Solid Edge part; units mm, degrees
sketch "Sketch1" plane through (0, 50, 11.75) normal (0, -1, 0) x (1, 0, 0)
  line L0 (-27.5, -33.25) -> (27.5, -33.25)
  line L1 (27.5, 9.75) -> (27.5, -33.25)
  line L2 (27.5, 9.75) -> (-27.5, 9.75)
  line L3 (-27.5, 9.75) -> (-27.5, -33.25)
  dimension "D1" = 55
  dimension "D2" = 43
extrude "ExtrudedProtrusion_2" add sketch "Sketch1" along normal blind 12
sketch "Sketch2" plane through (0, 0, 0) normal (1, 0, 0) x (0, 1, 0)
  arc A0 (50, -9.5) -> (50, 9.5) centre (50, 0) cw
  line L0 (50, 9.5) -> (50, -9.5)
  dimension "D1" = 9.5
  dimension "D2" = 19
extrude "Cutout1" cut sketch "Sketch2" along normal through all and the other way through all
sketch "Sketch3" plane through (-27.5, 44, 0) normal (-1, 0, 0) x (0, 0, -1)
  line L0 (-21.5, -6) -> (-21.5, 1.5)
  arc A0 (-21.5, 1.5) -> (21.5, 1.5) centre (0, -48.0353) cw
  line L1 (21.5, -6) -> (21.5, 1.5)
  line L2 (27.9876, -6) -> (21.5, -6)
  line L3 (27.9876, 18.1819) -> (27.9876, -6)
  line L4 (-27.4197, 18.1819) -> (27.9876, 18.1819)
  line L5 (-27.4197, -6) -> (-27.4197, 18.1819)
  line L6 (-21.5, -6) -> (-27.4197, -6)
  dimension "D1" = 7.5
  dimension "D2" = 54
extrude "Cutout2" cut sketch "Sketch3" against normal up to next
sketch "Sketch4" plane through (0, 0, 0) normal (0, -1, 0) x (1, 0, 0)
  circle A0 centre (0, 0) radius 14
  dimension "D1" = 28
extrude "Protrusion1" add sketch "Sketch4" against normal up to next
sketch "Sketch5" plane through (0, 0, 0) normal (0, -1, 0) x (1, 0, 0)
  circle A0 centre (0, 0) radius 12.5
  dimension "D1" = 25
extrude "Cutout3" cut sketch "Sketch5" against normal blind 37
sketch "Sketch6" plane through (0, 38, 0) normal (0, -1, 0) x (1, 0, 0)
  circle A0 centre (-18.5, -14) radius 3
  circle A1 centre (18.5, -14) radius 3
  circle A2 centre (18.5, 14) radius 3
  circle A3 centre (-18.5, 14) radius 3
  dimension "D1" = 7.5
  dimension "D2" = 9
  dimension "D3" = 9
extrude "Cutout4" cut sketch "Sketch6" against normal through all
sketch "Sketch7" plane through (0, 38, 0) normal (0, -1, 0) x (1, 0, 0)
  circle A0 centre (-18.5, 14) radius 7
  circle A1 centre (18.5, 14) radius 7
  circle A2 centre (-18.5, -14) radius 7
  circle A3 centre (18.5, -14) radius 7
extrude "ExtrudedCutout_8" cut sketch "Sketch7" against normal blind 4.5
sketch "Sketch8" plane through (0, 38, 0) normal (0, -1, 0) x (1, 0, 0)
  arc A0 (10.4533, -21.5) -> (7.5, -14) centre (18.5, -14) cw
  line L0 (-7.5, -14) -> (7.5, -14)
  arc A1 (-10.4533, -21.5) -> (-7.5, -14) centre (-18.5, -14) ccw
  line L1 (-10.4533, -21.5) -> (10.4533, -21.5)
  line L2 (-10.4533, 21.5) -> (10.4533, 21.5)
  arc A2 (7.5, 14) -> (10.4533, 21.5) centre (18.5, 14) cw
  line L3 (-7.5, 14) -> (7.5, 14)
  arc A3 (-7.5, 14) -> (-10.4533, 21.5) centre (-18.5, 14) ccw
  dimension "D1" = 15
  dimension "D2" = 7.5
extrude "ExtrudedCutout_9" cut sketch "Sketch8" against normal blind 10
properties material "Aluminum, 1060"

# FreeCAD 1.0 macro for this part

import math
import FreeCAD as App
import Part
import Sketcher

V = App.Vector
Q = App.Units.Quantity

doc = App.newDocument("Part")
body = doc.addObject("PartDesign::Body", "Body")

# Sketch on XZ plane
sketch1 = body.newObject("Sketcher::SketchObject", "Sketch")
sketch1.AttachmentSupport = (doc.getObject("XZ_Plane"), [""])
sketch1.MapMode = "FlatFace"
sketch1.AttachmentOffset = App.Placement(V(0, 0, -50), App.Rotation())
sketch1.addGeometry([
    Part.LineSegment(V(-27.5, 21.5, 0), V(-27.5, -21.5, 0)),
    Part.LineSegment(V(-27.5, -21.5, 0), V(27.5, -21.5, 0)),
    Part.LineSegment(V(27.5, -21.5, 0), V(27.5, 21.5, 0)),
    Part.LineSegment(V(27.5, 21.5, 0), V(-27.5, 21.5, 0)),
], False)
sketch1.addConstraint([
    Sketcher.Constraint("Coincident", 0, 2, 1, 1),
    Sketcher.Constraint("Coincident", 1, 2, 2, 1),
    Sketcher.Constraint("Coincident", 2, 2, 3, 1),
    Sketcher.Constraint("Coincident", 3, 2, 0, 1),
    Sketcher.Constraint("Vertical", 0),
    Sketcher.Constraint("Horizontal", 1),
    Sketcher.Constraint("Vertical", 2),
    Sketcher.Constraint("Horizontal", 3),
    Sketcher.Constraint("Symmetric", 0, 2, 2, 2, -1, 1),
    Sketcher.Constraint("DistanceX", 0, 2, -1, 1, Q("27.5 mm")),
    Sketcher.Constraint("DistanceY", 0, 2, 0, 1, Q("43 mm")),
])
pad1 = body.newObject("PartDesign::Pad", "Pad")
pad1.Profile = sketch1
pad1.Length = 12

# Sketch on YZ plane
sketch2 = body.newObject("Sketcher::SketchObject", "Sketch001")
sketch2.AttachmentSupport = (doc.getObject("YZ_Plane"), [""])
sketch2.MapMode = "FlatFace"
sketch2.addGeometry([
    Part.ArcOfCircle(Part.Circle(V(50, 0, 0), V(0, 0, 1), 9.5), math.radians(90), math.radians(270)),
    Part.LineSegment(V(50, -9.5, 0), V(50, 9.5, 0)),
], False)
sketch2.addConstraint([
    Sketcher.Constraint("Coincident", 0, 1, 1, 2),
    Sketcher.Constraint("Coincident", 1, 1, 0, 2),
    Sketcher.Constraint("Vertical", 1),
    Sketcher.Constraint("PointOnObject", 0, 3, -1),
    Sketcher.Constraint("DistanceX", -1, 1, 0, 3, Q("50 mm")),
    Sketcher.Constraint("DistanceX", -1, 1, 0, 1, Q("50 mm")),
    Sketcher.Constraint("Radius", 0, Q("9.5 mm")),
])
pocket1 = body.newObject("PartDesign::Pocket", "Pocket")
pocket1.Profile = sketch2
pocket1.Type = "ThroughAll"
pocket1.Midplane = True

# Sketch on YZ plane
sketch3 = body.newObject("Sketcher::SketchObject", "Sketch002")
sketch3.AttachmentSupport = (doc.getObject("YZ_Plane"), [""])
sketch3.MapMode = "FlatFace"
sketch3.AttachmentOffset = App.Placement(V(0, 0, -27.5), App.Rotation())
sketch3.addGeometry([
    Part.LineSegment(V(50, 27.4197, 0), V(50, 21.5, 0)),  # 0
    Part.LineSegment(V(50, 21.5, 0), V(42.5, 21.5, 0)),  # 1
    Part.ArcOfCircle(Part.Circle(V(92.0353, 0, 0), V(0, 0, 1), 53.999962), math.radians(156.537522), math.radians(203.462478)),  # 2
    Part.LineSegment(V(42.5, -21.5, 0), V(50, -21.5, 0)),  # 3
    Part.LineSegment(V(50, -21.5, 0), V(50, -27.9876, 0)),  # 4
    Part.LineSegment(V(50, -27.9876, 0), V(25.8181, -27.9876, 0)),  # 5
    Part.LineSegment(V(25.8181, -27.9876, 0), V(25.8181, 27.4197, 0)),  # 6
    Part.LineSegment(V(25.8181, 27.4197, 0), V(50, 27.4197, 0)),  # 7
], False)
sketch3.addConstraint([
    Sketcher.Constraint("Coincident", 0, 2, 1, 1),
    Sketcher.Constraint("Coincident", 1, 2, 2, 1),
    Sketcher.Constraint("Coincident", 2, 2, 3, 1),
    Sketcher.Constraint("Coincident", 3, 2, 4, 1),
    Sketcher.Constraint("Coincident", 4, 2, 5, 1),
    Sketcher.Constraint("Coincident", 5, 2, 6, 1),
    Sketcher.Constraint("Coincident", 6, 2, 7, 1),
    Sketcher.Constraint("Coincident", 7, 2, 0, 1),
    Sketcher.Constraint("Vertical", 0),
    Sketcher.Constraint("Horizontal", 1),
    Sketcher.Constraint("Horizontal", 3),
    Sketcher.Constraint("Vertical", 4),
    Sketcher.Constraint("Horizontal", 5),
    Sketcher.Constraint("Vertical", 6),
    Sketcher.Constraint("Horizontal", 7),
    Sketcher.Constraint("Symmetric", 1, 2, 2, 2, -1),
    Sketcher.Constraint("Vertical", 0, 2, 3, 2),
    Sketcher.Constraint("Radius", 2, Q("54 mm")),
    Sketcher.Constraint("DistanceX", 1, 2, 1, 1, Q("7.5 mm")),
    Sketcher.Constraint("DistanceX", -1, 1, 0, 2, Q("50 mm")),
    Sketcher.Constraint("DistanceY", 2, 2, 1, 2, Q("43 mm")),
    Sketcher.Constraint("DistanceX", 5, 2, 5, 1, Q("24.182 mm")),
    Sketcher.Constraint("DistanceY", 0, 2, 0, 1, Q("5.9197 mm")),
    Sketcher.Constraint("DistanceY", 4, 2, 4, 1, Q("6.4876 mm")),
])
pocket2 = body.newObject("PartDesign::Pocket", "Pocket001")
pocket2.Profile = sketch3
pocket2.Length = 55
pocket2.Reversed = True

# Sketch on XZ plane
sketch4 = body.newObject("Sketcher::SketchObject", "Sketch003")
sketch4.AttachmentSupport = (doc.getObject("XZ_Plane"), [""])
sketch4.MapMode = "FlatFace"
sketch4.addGeometry(Part.Circle(V(0, 0, 0), V(0, 0, 1), 14), False)
sketch4.addConstraint([
    Sketcher.Constraint("Coincident", 0, 3, -1, 1),
    Sketcher.Constraint("Diameter", 0, Q("28 mm")),
])
pad2 = body.newObject("PartDesign::Pad", "Pad001")
pad2.Profile = sketch4
pad2.Type = "UpToFirst"
pad2.Reversed = True

# Sketch on XZ plane
sketch5 = body.newObject("Sketcher::SketchObject", "Sketch004")
sketch5.AttachmentSupport = (doc.getObject("XZ_Plane"), [""])
sketch5.MapMode = "FlatFace"
sketch5.addGeometry(Part.Circle(V(0, 0, 0), V(0, 0, 1), 12.5), False)
sketch5.addConstraint([
    Sketcher.Constraint("Coincident", 0, 3, -1, 1),
    Sketcher.Constraint("Diameter", 0, Q("25 mm")),
])
pocket3 = body.newObject("PartDesign::Pocket", "Pocket002")
pocket3.Profile = sketch5
pocket3.Length = 37

# Sketch on XZ plane
sketch6 = body.newObject("Sketcher::SketchObject", "Sketch005")
sketch6.AttachmentSupport = (doc.getObject("XZ_Plane"), [""])
sketch6.MapMode = "FlatFace"
sketch6.AttachmentOffset = App.Placement(V(0, 0, -38), App.Rotation())
sketch6.addGeometry([
    Part.Circle(V(-18.5, -14, 0), V(0, 0, 1), 3),
    Part.Circle(V(18.5, -14, 0), V(0, 0, 1), 3),
    Part.Circle(V(18.5, 14, 0), V(0, 0, 1), 3),
    Part.Circle(V(-18.5, 14, 0), V(0, 0, 1), 3),
], False)
sketch6.addConstraint([
    Sketcher.Constraint("Equal", 0, 1),
    Sketcher.Constraint("Equal", 1, 2),
    Sketcher.Constraint("Equal", 2, 3),
    Sketcher.Constraint("Symmetric", 0, 3, 2, 3, -1, 1),
    Sketcher.Constraint("Symmetric", 1, 3, 3, 3, -1, 1),
    Sketcher.Constraint("Symmetric", 0, 3, 1, 3, -2),
    Sketcher.Constraint("Diameter", 0, Q("6 mm")),
    Sketcher.Constraint("DistanceX", 0, 3, -1, 1, Q("18.5 mm")),
    Sketcher.Constraint("DistanceY", 0, 3, -1, 1, Q("14 mm")),
])
pocket4 = body.newObject("PartDesign::Pocket", "Pocket003")
pocket4.Profile = sketch6
pocket4.Type = "ThroughAll"

# Sketch on XZ plane
sketch7 = body.newObject("Sketcher::SketchObject", "Sketch006")
sketch7.AttachmentSupport = (doc.getObject("XZ_Plane"), [""])
sketch7.MapMode = "FlatFace"
sketch7.AttachmentOffset = App.Placement(V(0, 0, -38), App.Rotation())
sketch7.addGeometry([
    Part.Circle(V(-18.5, 14, 0), V(0, 0, 1), 7),
    Part.Circle(V(18.5, 14, 0), V(0, 0, 1), 7),
    Part.Circle(V(-18.5, -14, 0), V(0, 0, 1), 7),
    Part.Circle(V(18.5, -14, 0), V(0, 0, 1), 7),
], False)
sketch7.addConstraint([
    Sketcher.Constraint("Equal", 0, 1),
    Sketcher.Constraint("Equal", 1, 2),
    Sketcher.Constraint("Equal", 2, 3),
    Sketcher.Constraint("Symmetric", 1, 3, 2, 3, -1, 1),
    Sketcher.Constraint("Symmetric", 0, 3, 3, 3, -1, 1),
    Sketcher.Constraint("Symmetric", 0, 3, 1, 3, -2),
    Sketcher.Constraint("Diameter", 0, Q("14 mm")),
    Sketcher.Constraint("DistanceY", -1, 1, 0, 3, Q("14 mm")),
    Sketcher.Constraint("DistanceX", 0, 3, 1, 3, Q("37 mm")),
])
pocket5 = body.newObject("PartDesign::Pocket", "Pocket004")
pocket5.Profile = sketch7
pocket5.Length = 4.5

# Sketch on XZ plane
sketch8 = body.newObject("Sketcher::SketchObject", "Sketch007")
sketch8.AttachmentSupport = (doc.getObject("XZ_Plane"), [""])
sketch8.MapMode = "FlatFace"
sketch8.AttachmentOffset = App.Placement(V(0, 0, -38), App.Rotation())
sketch8.addGeometry([
    Part.LineSegment(V(-10.4533, -21.5, 0), V(10.4533, -21.5, 0)),  # 0
    Part.ArcOfCircle(Part.Circle(V(18.5, -14, 0), V(0, 0, 1), 10.999972), math.radians(180), math.radians(222.986023)),  # 1
    Part.LineSegment(V(7.5, -14, 0), V(-7.5, -14, 0)),  # 2
    Part.ArcOfCircle(Part.Circle(V(-18.5, -14, 0), V(0, 0, 1), 10.999972), math.radians(-42.986023), math.radians(0)),  # 3
    Part.LineSegment(V(10.4533, 21.5, 0), V(-10.4533, 21.5, 0)),  # 4
    Part.ArcOfCircle(Part.Circle(V(-18.5, 14, 0), V(0, 0, 1), 11), math.radians(0), math.radians(42.986023)),  # 5
    Part.LineSegment(V(-7.5, 14, 0), V(7.5, 14, 0)),  # 6
    Part.ArcOfCircle(Part.Circle(V(18.5, 14, 0), V(0, 0, 1), 11), math.radians(137.013977), math.radians(180)),  # 7
], False)
sketch8.addConstraint([
    Sketcher.Constraint("Coincident", 0, 2, 1, 2),
    Sketcher.Constraint("Coincident", 1, 1, 2, 1),
    Sketcher.Constraint("Coincident", 2, 2, 3, 2),
    Sketcher.Constraint("Coincident", 3, 1, 0, 1),
    Sketcher.Constraint("Coincident", 4, 2, 5, 2),
    Sketcher.Constraint("Coincident", 5, 1, 6, 1),
    Sketcher.Constraint("Coincident", 6, 2, 7, 2),
    Sketcher.Constraint("Coincident", 7, 1, 4, 1),
    Sketcher.Constraint("Horizontal", 0),
    Sketcher.Constraint("Horizontal", 2),
    Sketcher.Constraint("Horizontal", 4),
    Sketcher.Constraint("Horizontal", 6),
    Sketcher.Constraint("Equal", 1, 3),
    Sketcher.Constraint("Equal", 3, 5),
    Sketcher.Constraint("Equal", 5, 7),
    Sketcher.Constraint("Symmetric", 1, 3, 5, 3, -1, 1),
    Sketcher.Constraint("Symmetric", 3, 3, 7, 3, -1, 1),
    Sketcher.Constraint("Symmetric", 1, 3, 3, 3, -2),
    Sketcher.Constraint("Horizontal", 3, 3, 1, 1),
    Sketcher.Constraint("Horizontal", 7, 3, 5, 1),
    Sketcher.Constraint("Vertical", 3, 1, 4, 2),
    Sketcher.Constraint("Radius", 1, Q("11 mm")),
    Sketcher.Constraint("DistanceX", -1, 1, 1, 1, Q("7.5 mm")),
    Sketcher.Constraint("DistanceY", 0, 2, 1, 3, Q("7.5 mm")),
    Sketcher.Constraint("DistanceY", 1, 3, -1, 1, Q("14 mm")),
])
pocket6 = body.newObject("PartDesign::Pocket", "Pocket005")
pocket6.Profile = sketch8
pocket6.Length = 10

doc.recompute()
